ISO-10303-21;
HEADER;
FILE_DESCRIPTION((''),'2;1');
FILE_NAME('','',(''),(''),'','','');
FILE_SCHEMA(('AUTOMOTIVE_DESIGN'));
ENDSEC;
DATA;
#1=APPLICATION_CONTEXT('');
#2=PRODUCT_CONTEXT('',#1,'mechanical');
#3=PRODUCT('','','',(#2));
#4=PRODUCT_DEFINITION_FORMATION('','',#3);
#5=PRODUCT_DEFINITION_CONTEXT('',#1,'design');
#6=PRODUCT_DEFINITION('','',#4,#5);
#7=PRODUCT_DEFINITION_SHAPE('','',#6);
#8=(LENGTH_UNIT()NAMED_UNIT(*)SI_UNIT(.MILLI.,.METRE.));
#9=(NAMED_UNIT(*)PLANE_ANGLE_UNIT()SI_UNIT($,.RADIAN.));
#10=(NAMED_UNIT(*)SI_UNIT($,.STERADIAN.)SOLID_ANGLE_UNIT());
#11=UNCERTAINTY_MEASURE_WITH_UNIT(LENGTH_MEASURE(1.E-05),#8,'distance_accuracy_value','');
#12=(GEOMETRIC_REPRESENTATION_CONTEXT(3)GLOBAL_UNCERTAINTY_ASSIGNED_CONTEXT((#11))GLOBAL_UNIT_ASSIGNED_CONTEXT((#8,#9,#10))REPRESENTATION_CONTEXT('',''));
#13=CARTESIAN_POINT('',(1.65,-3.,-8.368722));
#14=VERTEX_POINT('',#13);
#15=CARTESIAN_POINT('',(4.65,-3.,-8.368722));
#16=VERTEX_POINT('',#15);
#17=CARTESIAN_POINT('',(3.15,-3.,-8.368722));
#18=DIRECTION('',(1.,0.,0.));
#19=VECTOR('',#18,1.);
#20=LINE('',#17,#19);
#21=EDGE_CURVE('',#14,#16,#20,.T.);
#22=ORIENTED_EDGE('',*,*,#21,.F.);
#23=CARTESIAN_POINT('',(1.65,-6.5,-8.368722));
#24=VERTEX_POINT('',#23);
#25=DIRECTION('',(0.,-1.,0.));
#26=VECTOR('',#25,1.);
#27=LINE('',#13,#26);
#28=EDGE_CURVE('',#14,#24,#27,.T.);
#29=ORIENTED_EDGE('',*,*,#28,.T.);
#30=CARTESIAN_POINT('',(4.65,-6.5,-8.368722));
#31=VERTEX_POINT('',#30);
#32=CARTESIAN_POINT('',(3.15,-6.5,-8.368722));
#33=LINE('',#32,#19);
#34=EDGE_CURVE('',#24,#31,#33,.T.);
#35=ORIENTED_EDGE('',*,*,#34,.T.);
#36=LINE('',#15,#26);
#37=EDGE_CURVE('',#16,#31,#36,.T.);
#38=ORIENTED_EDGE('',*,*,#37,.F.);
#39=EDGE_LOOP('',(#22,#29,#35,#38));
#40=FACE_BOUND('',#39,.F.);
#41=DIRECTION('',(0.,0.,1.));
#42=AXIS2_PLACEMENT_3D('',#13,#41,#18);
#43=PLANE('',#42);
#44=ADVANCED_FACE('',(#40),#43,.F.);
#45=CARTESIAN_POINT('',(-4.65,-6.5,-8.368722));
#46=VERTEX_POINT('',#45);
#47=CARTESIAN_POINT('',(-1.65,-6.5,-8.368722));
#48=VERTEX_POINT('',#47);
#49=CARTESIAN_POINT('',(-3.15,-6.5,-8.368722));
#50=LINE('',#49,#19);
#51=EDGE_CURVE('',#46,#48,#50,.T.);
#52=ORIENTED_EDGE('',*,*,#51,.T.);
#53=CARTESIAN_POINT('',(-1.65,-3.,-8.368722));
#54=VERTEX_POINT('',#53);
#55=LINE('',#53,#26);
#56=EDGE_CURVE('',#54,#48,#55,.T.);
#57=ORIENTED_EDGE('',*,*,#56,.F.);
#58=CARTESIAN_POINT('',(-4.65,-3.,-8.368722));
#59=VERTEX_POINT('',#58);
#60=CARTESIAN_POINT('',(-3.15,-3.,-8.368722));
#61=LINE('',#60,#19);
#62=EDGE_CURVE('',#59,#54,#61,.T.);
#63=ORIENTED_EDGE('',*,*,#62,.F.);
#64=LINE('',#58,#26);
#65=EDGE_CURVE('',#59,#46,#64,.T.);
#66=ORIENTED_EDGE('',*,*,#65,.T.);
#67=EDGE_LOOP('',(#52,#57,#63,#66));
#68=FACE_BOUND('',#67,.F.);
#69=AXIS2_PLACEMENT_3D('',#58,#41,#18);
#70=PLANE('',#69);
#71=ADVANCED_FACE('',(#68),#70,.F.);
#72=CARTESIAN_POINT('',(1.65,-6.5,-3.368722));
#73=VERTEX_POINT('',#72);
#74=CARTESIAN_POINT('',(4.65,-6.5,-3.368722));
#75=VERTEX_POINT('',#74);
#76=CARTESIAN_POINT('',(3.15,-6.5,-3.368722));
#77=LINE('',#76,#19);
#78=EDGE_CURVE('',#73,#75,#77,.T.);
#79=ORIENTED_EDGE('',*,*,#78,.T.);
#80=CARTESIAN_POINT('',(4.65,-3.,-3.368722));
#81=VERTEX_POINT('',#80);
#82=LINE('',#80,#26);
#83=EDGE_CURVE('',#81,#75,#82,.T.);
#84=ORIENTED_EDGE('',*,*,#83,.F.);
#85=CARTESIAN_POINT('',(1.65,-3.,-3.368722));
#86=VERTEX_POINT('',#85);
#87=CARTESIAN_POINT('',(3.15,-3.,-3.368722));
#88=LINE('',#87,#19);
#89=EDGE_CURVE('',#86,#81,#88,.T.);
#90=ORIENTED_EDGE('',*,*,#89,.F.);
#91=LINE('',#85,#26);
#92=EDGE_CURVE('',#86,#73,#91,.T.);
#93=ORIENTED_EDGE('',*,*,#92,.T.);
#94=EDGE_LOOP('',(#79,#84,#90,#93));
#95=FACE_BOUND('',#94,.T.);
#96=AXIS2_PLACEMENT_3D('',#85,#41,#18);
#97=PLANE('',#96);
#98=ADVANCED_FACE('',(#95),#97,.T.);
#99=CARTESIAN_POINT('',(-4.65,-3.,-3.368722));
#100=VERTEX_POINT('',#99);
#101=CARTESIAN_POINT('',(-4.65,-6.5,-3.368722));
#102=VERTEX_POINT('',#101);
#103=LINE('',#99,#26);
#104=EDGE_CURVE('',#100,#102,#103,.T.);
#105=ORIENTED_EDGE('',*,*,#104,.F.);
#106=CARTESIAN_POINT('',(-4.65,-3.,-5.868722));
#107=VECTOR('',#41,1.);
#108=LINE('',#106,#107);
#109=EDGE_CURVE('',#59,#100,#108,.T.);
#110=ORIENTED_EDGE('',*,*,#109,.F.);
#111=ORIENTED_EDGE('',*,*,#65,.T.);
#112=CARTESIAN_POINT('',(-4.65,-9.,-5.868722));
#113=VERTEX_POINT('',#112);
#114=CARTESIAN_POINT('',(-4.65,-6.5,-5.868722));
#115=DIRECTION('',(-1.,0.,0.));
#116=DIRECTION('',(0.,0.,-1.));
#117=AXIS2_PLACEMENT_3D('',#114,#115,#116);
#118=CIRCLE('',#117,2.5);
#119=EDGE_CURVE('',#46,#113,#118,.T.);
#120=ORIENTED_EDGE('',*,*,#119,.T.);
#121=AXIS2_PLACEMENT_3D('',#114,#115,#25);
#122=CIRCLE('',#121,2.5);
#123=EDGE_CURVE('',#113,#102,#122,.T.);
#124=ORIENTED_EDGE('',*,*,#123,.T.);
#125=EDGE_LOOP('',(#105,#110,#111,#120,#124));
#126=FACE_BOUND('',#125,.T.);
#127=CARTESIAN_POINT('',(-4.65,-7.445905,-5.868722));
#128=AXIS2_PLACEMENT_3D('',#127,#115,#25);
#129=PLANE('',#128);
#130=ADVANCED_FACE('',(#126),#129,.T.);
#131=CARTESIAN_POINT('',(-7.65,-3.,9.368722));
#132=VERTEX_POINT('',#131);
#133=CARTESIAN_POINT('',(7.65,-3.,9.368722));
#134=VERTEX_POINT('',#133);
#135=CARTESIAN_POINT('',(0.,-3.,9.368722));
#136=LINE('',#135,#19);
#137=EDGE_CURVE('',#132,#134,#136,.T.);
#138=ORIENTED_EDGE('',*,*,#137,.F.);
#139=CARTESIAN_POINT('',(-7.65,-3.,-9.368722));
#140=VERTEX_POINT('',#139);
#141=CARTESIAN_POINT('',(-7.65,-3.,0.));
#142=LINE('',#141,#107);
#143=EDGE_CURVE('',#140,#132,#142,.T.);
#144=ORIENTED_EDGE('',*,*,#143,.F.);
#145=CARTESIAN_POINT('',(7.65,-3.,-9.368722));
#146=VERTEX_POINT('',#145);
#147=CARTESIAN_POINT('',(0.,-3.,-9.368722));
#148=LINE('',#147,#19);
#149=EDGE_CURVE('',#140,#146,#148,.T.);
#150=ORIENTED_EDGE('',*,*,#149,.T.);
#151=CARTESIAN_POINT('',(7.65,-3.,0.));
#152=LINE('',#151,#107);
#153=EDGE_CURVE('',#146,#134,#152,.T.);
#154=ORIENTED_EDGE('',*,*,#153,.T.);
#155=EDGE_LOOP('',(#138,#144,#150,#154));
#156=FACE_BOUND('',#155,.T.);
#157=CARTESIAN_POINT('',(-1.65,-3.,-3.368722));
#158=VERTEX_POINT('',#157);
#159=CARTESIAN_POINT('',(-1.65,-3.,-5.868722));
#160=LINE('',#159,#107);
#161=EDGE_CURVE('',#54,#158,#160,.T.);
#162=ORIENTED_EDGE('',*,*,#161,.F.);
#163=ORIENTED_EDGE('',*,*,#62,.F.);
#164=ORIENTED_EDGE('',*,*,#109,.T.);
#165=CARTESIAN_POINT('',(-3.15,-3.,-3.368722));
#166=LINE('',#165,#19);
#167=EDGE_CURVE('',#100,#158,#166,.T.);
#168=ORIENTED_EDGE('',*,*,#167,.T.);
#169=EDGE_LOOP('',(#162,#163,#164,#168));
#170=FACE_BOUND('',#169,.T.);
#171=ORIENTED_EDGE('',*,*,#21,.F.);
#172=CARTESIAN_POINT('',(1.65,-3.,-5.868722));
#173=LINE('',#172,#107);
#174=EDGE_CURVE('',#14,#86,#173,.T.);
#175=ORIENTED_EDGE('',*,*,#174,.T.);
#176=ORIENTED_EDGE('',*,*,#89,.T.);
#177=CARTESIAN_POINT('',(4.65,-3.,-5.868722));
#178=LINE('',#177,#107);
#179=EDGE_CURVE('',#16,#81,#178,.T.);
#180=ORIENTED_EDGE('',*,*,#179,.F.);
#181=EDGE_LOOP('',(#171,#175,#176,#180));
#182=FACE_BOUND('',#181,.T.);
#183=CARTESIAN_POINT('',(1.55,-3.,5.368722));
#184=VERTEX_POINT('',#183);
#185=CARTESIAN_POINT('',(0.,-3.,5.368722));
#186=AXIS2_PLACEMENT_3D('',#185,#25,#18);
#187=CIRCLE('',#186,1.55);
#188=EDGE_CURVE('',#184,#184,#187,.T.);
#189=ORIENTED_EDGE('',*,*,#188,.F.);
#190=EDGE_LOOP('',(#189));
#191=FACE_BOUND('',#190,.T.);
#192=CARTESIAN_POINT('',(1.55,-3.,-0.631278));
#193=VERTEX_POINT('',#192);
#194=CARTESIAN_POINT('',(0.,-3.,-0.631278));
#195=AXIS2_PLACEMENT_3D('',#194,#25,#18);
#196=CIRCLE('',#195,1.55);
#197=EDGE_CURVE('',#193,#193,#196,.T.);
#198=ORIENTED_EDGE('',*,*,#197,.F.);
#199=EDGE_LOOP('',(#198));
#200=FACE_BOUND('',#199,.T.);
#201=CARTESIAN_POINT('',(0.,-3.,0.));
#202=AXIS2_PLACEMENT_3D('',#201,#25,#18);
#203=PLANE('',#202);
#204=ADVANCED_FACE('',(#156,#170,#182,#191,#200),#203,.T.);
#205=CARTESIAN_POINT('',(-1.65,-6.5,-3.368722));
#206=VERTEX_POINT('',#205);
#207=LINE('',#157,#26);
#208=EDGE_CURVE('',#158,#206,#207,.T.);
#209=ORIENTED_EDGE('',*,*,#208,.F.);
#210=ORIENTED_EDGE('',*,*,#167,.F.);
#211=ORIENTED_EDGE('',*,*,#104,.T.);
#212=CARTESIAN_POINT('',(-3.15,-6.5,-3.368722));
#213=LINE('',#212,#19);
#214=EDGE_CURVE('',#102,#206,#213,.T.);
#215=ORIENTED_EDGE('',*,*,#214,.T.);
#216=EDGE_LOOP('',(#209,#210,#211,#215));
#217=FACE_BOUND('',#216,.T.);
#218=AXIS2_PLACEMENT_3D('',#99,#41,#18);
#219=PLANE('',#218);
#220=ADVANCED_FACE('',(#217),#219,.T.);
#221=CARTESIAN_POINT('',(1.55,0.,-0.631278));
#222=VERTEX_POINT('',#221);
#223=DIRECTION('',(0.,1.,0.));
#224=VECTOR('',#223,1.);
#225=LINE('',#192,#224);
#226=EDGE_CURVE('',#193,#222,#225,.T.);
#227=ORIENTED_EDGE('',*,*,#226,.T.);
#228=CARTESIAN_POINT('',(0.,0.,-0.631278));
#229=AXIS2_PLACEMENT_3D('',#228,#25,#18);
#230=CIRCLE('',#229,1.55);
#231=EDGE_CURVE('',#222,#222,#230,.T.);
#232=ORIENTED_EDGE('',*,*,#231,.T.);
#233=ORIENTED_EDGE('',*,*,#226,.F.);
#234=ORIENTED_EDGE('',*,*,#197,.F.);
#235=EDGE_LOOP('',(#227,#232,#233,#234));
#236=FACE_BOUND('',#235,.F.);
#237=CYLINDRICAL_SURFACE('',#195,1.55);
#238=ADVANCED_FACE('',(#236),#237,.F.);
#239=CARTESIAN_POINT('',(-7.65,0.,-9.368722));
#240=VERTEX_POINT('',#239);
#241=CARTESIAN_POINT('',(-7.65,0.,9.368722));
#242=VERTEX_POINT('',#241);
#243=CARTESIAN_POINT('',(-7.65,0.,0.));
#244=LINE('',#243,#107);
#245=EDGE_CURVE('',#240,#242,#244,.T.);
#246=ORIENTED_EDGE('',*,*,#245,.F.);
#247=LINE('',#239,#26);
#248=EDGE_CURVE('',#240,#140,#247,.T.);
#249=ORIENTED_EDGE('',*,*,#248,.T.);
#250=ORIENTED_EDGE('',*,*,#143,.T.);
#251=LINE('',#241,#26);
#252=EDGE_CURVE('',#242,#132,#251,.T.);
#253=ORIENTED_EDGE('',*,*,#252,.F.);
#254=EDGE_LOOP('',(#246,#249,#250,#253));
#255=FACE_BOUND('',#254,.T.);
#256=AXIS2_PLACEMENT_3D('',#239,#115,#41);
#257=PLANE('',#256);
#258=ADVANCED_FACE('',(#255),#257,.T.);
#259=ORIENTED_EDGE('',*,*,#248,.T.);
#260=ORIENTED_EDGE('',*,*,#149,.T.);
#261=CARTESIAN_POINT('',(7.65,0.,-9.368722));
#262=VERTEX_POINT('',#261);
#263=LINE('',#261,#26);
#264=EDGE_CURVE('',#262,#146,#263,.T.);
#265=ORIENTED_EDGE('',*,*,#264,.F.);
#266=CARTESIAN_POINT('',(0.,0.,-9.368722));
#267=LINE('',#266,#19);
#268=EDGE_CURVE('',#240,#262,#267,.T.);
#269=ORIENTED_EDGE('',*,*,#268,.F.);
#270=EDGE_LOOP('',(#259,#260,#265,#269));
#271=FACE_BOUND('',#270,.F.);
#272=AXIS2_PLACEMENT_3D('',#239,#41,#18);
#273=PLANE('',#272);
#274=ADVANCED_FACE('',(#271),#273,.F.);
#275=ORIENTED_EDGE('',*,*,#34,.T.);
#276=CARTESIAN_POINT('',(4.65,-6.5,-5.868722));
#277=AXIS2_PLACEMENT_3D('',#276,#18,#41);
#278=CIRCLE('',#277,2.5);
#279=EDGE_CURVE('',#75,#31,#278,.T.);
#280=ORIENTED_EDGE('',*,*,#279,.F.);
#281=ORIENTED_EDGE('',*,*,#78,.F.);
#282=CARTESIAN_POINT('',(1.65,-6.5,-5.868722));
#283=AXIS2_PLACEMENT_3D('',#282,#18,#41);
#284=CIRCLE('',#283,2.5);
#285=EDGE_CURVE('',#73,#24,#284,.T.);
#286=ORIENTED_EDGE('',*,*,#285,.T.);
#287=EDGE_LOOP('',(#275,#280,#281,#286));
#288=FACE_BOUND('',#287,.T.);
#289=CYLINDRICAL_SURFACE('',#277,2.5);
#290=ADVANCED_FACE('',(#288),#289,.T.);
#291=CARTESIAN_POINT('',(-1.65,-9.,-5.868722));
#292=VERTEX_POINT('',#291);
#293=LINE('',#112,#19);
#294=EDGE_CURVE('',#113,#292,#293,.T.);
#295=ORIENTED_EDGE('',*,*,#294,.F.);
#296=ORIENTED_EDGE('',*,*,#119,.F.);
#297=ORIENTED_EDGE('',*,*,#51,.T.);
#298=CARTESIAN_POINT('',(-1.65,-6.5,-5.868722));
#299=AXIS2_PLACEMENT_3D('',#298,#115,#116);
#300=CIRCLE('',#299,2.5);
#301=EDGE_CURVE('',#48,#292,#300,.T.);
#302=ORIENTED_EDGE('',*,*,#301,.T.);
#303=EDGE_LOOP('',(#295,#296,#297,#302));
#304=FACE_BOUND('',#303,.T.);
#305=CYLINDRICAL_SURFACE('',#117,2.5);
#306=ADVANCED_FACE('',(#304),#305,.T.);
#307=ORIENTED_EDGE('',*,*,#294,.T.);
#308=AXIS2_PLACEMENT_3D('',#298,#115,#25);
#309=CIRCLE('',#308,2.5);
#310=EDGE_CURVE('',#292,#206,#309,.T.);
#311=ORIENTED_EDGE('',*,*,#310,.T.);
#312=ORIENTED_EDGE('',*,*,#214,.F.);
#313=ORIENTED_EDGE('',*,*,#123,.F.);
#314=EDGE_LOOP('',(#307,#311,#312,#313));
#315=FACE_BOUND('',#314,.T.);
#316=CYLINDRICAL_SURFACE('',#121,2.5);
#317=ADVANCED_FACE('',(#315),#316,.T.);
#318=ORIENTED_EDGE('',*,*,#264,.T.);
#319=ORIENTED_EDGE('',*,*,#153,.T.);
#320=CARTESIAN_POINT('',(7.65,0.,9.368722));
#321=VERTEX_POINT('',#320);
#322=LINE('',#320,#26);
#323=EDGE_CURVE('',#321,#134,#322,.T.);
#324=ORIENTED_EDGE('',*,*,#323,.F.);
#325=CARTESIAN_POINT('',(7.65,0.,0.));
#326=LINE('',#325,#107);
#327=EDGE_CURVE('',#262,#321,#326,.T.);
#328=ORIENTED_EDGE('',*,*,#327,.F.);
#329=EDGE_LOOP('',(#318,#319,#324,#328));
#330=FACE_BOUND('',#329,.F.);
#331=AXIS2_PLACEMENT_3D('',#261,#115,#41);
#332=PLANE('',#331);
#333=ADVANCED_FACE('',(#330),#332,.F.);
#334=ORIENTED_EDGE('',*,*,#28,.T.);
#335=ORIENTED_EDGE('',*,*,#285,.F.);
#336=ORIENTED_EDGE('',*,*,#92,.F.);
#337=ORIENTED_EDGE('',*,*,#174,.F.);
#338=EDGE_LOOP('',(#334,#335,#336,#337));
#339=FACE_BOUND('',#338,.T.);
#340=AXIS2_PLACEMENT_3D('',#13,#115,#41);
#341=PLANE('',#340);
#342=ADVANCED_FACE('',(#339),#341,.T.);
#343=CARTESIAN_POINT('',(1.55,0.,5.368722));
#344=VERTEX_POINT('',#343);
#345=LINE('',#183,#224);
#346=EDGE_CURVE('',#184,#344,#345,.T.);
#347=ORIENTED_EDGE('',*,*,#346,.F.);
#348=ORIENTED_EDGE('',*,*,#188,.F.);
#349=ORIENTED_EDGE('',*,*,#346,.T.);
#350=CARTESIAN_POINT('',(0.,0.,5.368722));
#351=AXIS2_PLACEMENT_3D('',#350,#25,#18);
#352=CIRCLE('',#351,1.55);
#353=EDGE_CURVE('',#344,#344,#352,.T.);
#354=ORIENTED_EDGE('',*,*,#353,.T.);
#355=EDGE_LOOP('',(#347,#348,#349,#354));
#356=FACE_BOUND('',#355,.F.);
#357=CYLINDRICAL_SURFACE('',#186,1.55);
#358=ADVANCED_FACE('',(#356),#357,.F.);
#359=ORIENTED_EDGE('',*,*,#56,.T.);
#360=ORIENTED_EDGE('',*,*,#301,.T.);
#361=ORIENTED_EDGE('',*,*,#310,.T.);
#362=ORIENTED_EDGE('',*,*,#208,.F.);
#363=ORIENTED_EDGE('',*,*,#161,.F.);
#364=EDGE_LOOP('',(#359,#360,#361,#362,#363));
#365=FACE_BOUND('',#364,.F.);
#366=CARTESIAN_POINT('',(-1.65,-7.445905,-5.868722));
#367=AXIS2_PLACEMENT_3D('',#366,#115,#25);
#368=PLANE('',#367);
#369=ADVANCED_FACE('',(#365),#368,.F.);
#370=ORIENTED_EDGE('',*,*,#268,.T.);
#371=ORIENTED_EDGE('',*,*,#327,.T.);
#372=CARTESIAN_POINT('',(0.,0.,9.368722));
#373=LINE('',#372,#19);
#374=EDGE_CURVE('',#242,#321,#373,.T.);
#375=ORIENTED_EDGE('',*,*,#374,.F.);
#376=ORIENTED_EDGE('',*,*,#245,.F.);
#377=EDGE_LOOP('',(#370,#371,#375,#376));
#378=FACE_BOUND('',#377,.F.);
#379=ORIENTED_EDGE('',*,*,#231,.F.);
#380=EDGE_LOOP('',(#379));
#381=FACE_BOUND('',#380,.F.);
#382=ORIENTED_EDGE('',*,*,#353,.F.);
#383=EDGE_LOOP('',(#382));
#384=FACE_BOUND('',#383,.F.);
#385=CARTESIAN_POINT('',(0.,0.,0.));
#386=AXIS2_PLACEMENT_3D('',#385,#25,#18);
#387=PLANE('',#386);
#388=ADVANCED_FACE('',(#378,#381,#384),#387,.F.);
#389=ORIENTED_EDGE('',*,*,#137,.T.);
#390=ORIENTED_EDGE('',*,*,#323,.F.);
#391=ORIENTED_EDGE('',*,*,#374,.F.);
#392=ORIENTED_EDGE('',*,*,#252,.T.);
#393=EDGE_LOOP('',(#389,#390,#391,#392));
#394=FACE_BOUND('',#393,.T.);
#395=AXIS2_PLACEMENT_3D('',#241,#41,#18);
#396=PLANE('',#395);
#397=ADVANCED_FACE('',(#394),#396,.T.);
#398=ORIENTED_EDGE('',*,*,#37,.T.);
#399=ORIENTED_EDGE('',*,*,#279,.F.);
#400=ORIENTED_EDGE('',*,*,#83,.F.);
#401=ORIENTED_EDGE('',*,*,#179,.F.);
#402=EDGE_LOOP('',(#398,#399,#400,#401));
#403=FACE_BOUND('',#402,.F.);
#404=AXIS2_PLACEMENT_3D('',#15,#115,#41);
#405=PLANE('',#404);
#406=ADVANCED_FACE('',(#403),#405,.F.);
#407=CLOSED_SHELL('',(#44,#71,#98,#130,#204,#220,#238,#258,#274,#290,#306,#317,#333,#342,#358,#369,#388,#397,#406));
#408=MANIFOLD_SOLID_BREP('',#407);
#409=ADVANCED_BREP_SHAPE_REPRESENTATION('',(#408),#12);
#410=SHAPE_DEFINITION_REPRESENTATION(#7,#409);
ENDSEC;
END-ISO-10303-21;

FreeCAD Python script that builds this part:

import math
import FreeCAD as App
import Part
import Sketcher
from FreeCAD import Vector


def add_polygon(sketch, points):
    """Adds a closed chain of lines whose ends are joined by coincident constraints."""
    first, n = sketch.GeometryCount, len(points)
    for a, b in zip(points, points[1:] + points[:1]):
        sketch.addGeometry(Part.LineSegment(App.Vector(*a, 0), App.Vector(*b, 0)), False)
    for i in range(n):
        sketch.addConstraint(Sketcher.Constraint("Coincident", first + i, 2, first + (i + 1) % n, 1))

doc = App.newDocument("Part")
params = doc.addObject("Spreadsheet::Sheet", "Params")
for row, (alias, value) in enumerate([
    ("sketch1_width", "15.3 mm"),
    ("pad1_length", "3 mm"),
    ("sketch2_width", "3 mm"),
    ("sketch2_height", "5 mm"),
    ("pad2_length", "3.5 mm"),
    ("sketch3_diameter", "3.1 mm"),
    ("pocket1_length", "5 mm"),
    ("sketch4_radius", "2.5 mm"),
    ("pad3_length", "3 mm"),
    ("sketch5_radius", "2.5 mm"),
    ("pad4_length", "3 mm"),
], start=1):
    params.set(f"A{row}", alias)
    params.set(f"B{row}", "=" + value)
    params.setAlias(f"B{row}", alias)

body = doc.addObject("PartDesign::Body", "Body")

# Sketch on XZ plane
sketch1 = body.newObject("Sketcher::SketchObject", "Sketch")
sketch1.AttachmentSupport = (doc.getObject("XZ_Plane"), [""])
sketch1.MapMode = "FlatFace"
add_polygon(sketch1, [(-8, 9), (-8, -9), (8, -9), (8, 9)])  # lines 0-3
sketch1.addConstraint(Sketcher.Constraint("Vertical", 0))
sketch1.addConstraint(Sketcher.Constraint("Horizontal", 1))
sketch1.addConstraint(Sketcher.Constraint("Vertical", 2))
sketch1.addConstraint(Sketcher.Constraint("Horizontal", 3))
sketch1.addConstraint(Sketcher.Constraint("Symmetric", 0, 2, 2, 2, -1, 1))
sketch1.addConstraint(Sketcher.Constraint("DistanceX", 1, 1, 1, 2, 15.3))
sketch1.addConstraint(Sketcher.Constraint("DistanceY", 0, 2, 0, 1, 18.737445))
sketch1.setExpression("Constraints[9]", "Params.sketch1_width")
pad1 = body.newObject("PartDesign::Pad", "Pad")
pad1.Profile = sketch1
pad1.setExpression("Length", "Params.pad1_length")

# Sketch on XZ plane
sketch2 = body.newObject("Sketcher::SketchObject", "Sketch001")
sketch2.AttachmentSupport = (doc.getObject("XZ_Plane"), [""])
sketch2.MapMode = "FlatFace"
sketch2.AttachmentOffset = App.Placement(Vector(0, 0, 3), App.Rotation())
add_polygon(sketch2, [(-4.7, -3.4), (-4.7, -8.4), (-1.6, -8.4), (-1.6, -3.4)])  # lines 0-3
add_polygon(sketch2, [(1.6, -3.4), (1.6, -8.4), (4.7, -8.4), (4.7, -3.4)])  # lines 4-7
sketch2.addConstraint(Sketcher.Constraint("Vertical", 0))
sketch2.addConstraint(Sketcher.Constraint("Horizontal", 1))
sketch2.addConstraint(Sketcher.Constraint("Vertical", 2))
sketch2.addConstraint(Sketcher.Constraint("Horizontal", 3))
sketch2.addConstraint(Sketcher.Constraint("Vertical", 4))
sketch2.addConstraint(Sketcher.Constraint("Horizontal", 5))
sketch2.addConstraint(Sketcher.Constraint("Vertical", 6))
sketch2.addConstraint(Sketcher.Constraint("Horizontal", 7))
sketch2.addConstraint(Sketcher.Constraint("Symmetric", 1, 2, 4, 2, -2))
sketch2.addConstraint(Sketcher.Constraint("Symmetric", 3, 2, 6, 2, -2))
sketch2.addConstraint(Sketcher.Constraint("DistanceX", 1, 1, 1, 2, 3.0))
sketch2.addConstraint(Sketcher.Constraint("DistanceY", 0, 2, 0, 1, 5.0))
sketch2.addConstraint(Sketcher.Constraint("DistanceX", 1, 2, 4, 2, 3.3))
sketch2.addConstraint(Sketcher.Constraint("DistanceY", 0, 2, -1, 1, 8.368722))
sketch2.setExpression("Constraints[18]", "Params.sketch2_width")
sketch2.setExpression("Constraints[19]", "Params.sketch2_height")
pad2 = body.newObject("PartDesign::Pad", "Pad001")
pad2.Profile = sketch2
pad2.setExpression("Length", "Params.pad2_length")

# Sketch on XZ plane
sketch3 = body.newObject("Sketcher::SketchObject", "Sketch002")
sketch3.AttachmentSupport = (doc.getObject("XZ_Plane"), [""])
sketch3.MapMode = "FlatFace"
sketch3.AttachmentOffset = App.Placement(Vector(0, 0, 3), App.Rotation())
sketch3.addGeometry(Part.Circle(Vector(0, -0.6, 0), Vector(0, 0, 1), 1.6), False)
sketch3.addGeometry(Part.Circle(Vector(0, 5.4, 0), Vector(0, 0, 1), 1.6), False)
sketch3.addConstraint(Sketcher.Constraint("Equal", 0, 1))
sketch3.addConstraint(Sketcher.Constraint("PointOnObject", 0, 3, -2))
sketch3.addConstraint(Sketcher.Constraint("PointOnObject", 1, 3, -2))
sketch3.addConstraint(Sketcher.Constraint("Diameter", 0, 3.1))
sketch3.addConstraint(Sketcher.Constraint("DistanceY", 0, 3, 1, 3, 6.0))
sketch3.addConstraint(Sketcher.Constraint("DistanceY", 0, 3, -1, 1, 0.631278))
sketch3.setExpression("Constraints[3]", "Params.sketch3_diameter")
pocket1 = body.newObject("PartDesign::Pocket", "Pocket")
pocket1.Profile = sketch3
pocket1.setExpression("Length", "Params.pocket1_length")

# Sketch on YZ plane
sketch4 = body.newObject("Sketcher::SketchObject", "Sketch003")
sketch4.AttachmentSupport = (doc.getObject("YZ_Plane"), [""])
sketch4.MapMode = "FlatFace"
sketch4.AttachmentOffset = App.Placement(Vector(0, 0, -4.65), App.Rotation())
sketch4.addGeometry(Part.ArcOfCircle(Part.Circle(Vector(-6.5, -5.9, 0), Vector(0, 0, 1), 2.5), math.radians(180), math.radians(270)), False)
sketch4.addGeometry(Part.ArcOfCircle(Part.Circle(Vector(-6.5, -5.9, 0), Vector(0, 0, 1), 2.5), math.radians(90), math.radians(180)), False)
sketch4.addGeometry(Part.LineSegment(Vector(-6.5, -3.4, 0), Vector(-6.5, -8.4, 0)), False)
sketch4.addConstraint(Sketcher.Constraint("Tangent", 0, 1, 1, 2))
sketch4.addConstraint(Sketcher.Constraint("Coincident", 1, 1, 2, 1))
sketch4.addConstraint(Sketcher.Constraint("Coincident", 2, 2, 0, 2))
sketch4.addConstraint(Sketcher.Constraint("Vertical", 2))
sketch4.addConstraint(Sketcher.Constraint("Equal", 0, 1))
sketch4.addConstraint(Sketcher.Constraint("Horizontal", 1, 3, 0, 1))
sketch4.addConstraint(Sketcher.Constraint("Vertical", 0, 3, 1, 1))
sketch4.addConstraint(Sketcher.Constraint("Radius", 0, 2.5))
sketch4.addConstraint(Sketcher.Constraint("DistanceX", 0, 1, -1, 1, 9.0))
sketch4.addConstraint(Sketcher.Constraint("DistanceY", 0, 3, -1, 1, 5.868722))
sketch4.setExpression("Constraints[7]", "Params.sketch4_radius")
pad3 = body.newObject("PartDesign::Pad", "Pad002")
pad3.Profile = sketch4
pad3.setExpression("Length", "Params.pad3_length")

# Sketch on YZ plane
sketch5 = body.newObject("Sketcher::SketchObject", "Sketch004")
sketch5.AttachmentSupport = (doc.getObject("YZ_Plane"), [""])
sketch5.MapMode = "FlatFace"
sketch5.AttachmentOffset = App.Placement(Vector(0, 0, 4.65), App.Rotation())
sketch5.addGeometry(Part.ArcOfCircle(Part.Circle(Vector(-6.5, -5.9, 0), Vector(0, 0, 1), 2.5), math.radians(-90), math.radians(0)), False)
sketch5.addGeometry(Part.ArcOfCircle(Part.Circle(Vector(-6.5, -5.9, 0), Vector(0, 0, 1), 2.5), math.radians(0), math.radians(90)), False)
sketch5.addGeometry(Part.ArcOfCircle(Part.Circle(Vector(-6.5, -5.9, 0), Vector(0, 0, 1), 2.5), math.radians(90), math.radians(270)), False)
sketch5.addConstraint(Sketcher.Constraint("Tangent", 0, 2, 1, 1))
sketch5.addConstraint(Sketcher.Constraint("Tangent", 1, 2, 2, 1))
sketch5.addConstraint(Sketcher.Constraint("Tangent", 2, 2, 0, 1))
sketch5.addConstraint(Sketcher.Constraint("Horizontal", 2, 3, 0, 2))
sketch5.addConstraint(Sketcher.Constraint("Vertical", 2, 3, 1, 2))
sketch5.addConstraint(Sketcher.Constraint("Vertical", 1, 2, 2, 2))
sketch5.addConstraint(Sketcher.Constraint("Radius", 0, 2.5))
sketch5.addConstraint(Sketcher.Constraint("DistanceX", 0, 2, -1, 1, 4.0))
sketch5.addConstraint(Sketcher.Constraint("DistanceY", 0, 3, -1, 1, 5.868722))
sketch5.setExpression("Constraints[6]", "Params.sketch5_radius")
pad4 = body.newObject("PartDesign::Pad", "Pad003")
pad4.Profile = sketch5
pad4.setExpression("Length", "Params.pad4_length")
pad4.Reversed = True

doc.recompute()
